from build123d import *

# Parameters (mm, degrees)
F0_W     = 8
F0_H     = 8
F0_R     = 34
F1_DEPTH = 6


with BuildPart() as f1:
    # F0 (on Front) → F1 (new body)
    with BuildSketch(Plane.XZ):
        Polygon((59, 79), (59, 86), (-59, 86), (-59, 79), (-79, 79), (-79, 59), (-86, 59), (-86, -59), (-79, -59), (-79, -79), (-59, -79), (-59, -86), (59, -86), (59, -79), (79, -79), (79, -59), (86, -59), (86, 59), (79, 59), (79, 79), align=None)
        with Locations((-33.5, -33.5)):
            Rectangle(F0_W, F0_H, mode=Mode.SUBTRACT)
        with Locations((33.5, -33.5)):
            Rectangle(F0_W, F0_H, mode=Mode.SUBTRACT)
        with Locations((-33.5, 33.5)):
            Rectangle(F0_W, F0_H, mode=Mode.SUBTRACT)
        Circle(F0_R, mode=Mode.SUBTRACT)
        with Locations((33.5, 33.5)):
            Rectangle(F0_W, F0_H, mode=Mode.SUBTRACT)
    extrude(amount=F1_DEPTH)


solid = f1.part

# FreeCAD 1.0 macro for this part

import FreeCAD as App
import Part
import Sketcher

V = App.Vector


def add_polygon(sketch, points):
    """Adds a closed chain of lines whose ends are joined by coincident constraints."""
    first, n = sketch.GeometryCount, len(points)
    for a, b in zip(points, points[1:] + points[:1]):
        sketch.addGeometry(Part.LineSegment(App.Vector(*a, 0), App.Vector(*b, 0)), False)
    for i in range(n):
        sketch.addConstraint(Sketcher.Constraint("Coincident", first + i, 2, first + (i + 1) % n, 1))

doc = App.newDocument("Part")
params = doc.addObject("Spreadsheet::Sheet", "Params")
for row, (alias, value) in enumerate([
    ("sketch1_diameter", "68 mm"),
    ("sketch1_width", "118 mm"),
    ("sketch1_width2", "20 mm"),
    ("sketch1_width3", "7 mm"),
    ("sketch1_width4", "8 mm"),
    ("pad1_length", "6 mm"),
], start=1):
    params.set(f"A{row}", alias)
    params.set(f"B{row}", "=" + value)
    params.setAlias(f"B{row}", alias)

body = doc.addObject("PartDesign::Body", "Body")

# Sketch on XZ plane
sketch1 = body.newObject("Sketcher::SketchObject", "Sketch")
sketch1.AttachmentSupport = (doc.getObject("XZ_Plane"), [""])
sketch1.MapMode = "FlatFace"
add_polygon(sketch1, [(59, 79), (59, 86), (-59, 86), (-59, 79), (-79, 79), (-79, 59), (-86, 59), (-86, -59), (-79, -59), (-79, -79), (-59, -79), (-59, -86), (59, -86), (59, -79), (79, -79), (79, -59), (86, -59), (86, 59), (79, 59), (79, 79)])  # lines 0-19
add_polygon(sketch1, [(-30, -38), (-38, -38), (-38, -30), (-30, -30)])  # lines 20-23
add_polygon(sketch1, [(38, -38), (30, -38), (30, -30), (38, -30)])  # lines 24-27
add_polygon(sketch1, [(-30, 30), (-38, 30), (-38, 38), (-30, 38)])  # lines 28-31
sketch1.addGeometry(Part.Circle(V(0, 0, 0), V(0, 0, 1), 34), False)  # 32
add_polygon(sketch1, [(38, 30), (30, 30), (30, 38), (38, 38)])  # lines 33-36
sketch1.addConstraint([
    Sketcher.Constraint("Vertical", 0),
    Sketcher.Constraint("Horizontal", 1),
    Sketcher.Constraint("Vertical", 2),
    Sketcher.Constraint("Horizontal", 3),
    Sketcher.Constraint("Vertical", 4),
    Sketcher.Constraint("Horizontal", 5),
    Sketcher.Constraint("Vertical", 6),
    Sketcher.Constraint("Horizontal", 7),
    Sketcher.Constraint("Vertical", 8),
    Sketcher.Constraint("Horizontal", 9),
    Sketcher.Constraint("Vertical", 10),
    Sketcher.Constraint("Horizontal", 11),
    Sketcher.Constraint("Vertical", 12),
    Sketcher.Constraint("Horizontal", 13),
    Sketcher.Constraint("Vertical", 14),
    Sketcher.Constraint("Horizontal", 15),
    Sketcher.Constraint("Vertical", 16),
    Sketcher.Constraint("Horizontal", 17),
    Sketcher.Constraint("Vertical", 18),
    Sketcher.Constraint("Horizontal", 19),
    Sketcher.Constraint("Horizontal", 20),
    Sketcher.Constraint("Vertical", 21),
    Sketcher.Constraint("Horizontal", 22),
    Sketcher.Constraint("Vertical", 23),
    Sketcher.Constraint("Horizontal", 24),
    Sketcher.Constraint("Vertical", 25),
    Sketcher.Constraint("Horizontal", 26),
    Sketcher.Constraint("Vertical", 27),
    Sketcher.Constraint("Horizontal", 28),
    Sketcher.Constraint("Vertical", 29),
    Sketcher.Constraint("Horizontal", 30),
    Sketcher.Constraint("Vertical", 31),
    Sketcher.Constraint("Horizontal", 33),
    Sketcher.Constraint("Vertical", 34),
    Sketcher.Constraint("Horizontal", 35),
    Sketcher.Constraint("Vertical", 36),
    Sketcher.Constraint("Coincident", 32, 3, -1, 1),
    Sketcher.Constraint("Symmetric", 0, 2, 10, 2, -1, 1),
    Sketcher.Constraint("Symmetric", 2, 2, 12, 2, -1, 1),
    Sketcher.Constraint("Symmetric", 4, 2, 14, 2, -1, 1),
    Sketcher.Constraint("Symmetric", 6, 2, 16, 2, -1, 1),
    Sketcher.Constraint("Symmetric", 8, 2, 18, 2, -1, 1),
    Sketcher.Constraint("Symmetric", 26, 2, 28, 2, -1, 1),
    Sketcher.Constraint("Symmetric", 24, 2, 30, 2, -1, 1),
    Sketcher.Constraint("Symmetric", 22, 2, 33, 2, -1, 1),
    Sketcher.Constraint("Symmetric", 20, 2, 35, 2, -1, 1),
    Sketcher.Constraint("Symmetric", 9, 2, 12, 2, -2),
    Sketcher.Constraint("Symmetric", 7, 2, 14, 2, -2),
    Sketcher.Constraint("Symmetric", 23, 2, 24, 2, -2),
    Sketcher.Constraint("Symmetric", 21, 2, 26, 2, -2),
    Sketcher.Constraint("Equal", 17, 0),
    Sketcher.Constraint("Equal", 19, 4),
    Sketcher.Constraint("Equal", 11, 6),
    Sketcher.Constraint("Equal", 35, 21),
    Sketcher.Constraint("Diameter", 32, 68.0),
    Sketcher.Constraint("DistanceX", 1, 2, 1, 1, 118.0),
    Sketcher.Constraint("DistanceX", 3, 2, 3, 1, 20.0),
    Sketcher.Constraint("DistanceX", 5, 2, 5, 1, 7.0),
    Sketcher.Constraint("DistanceX", 20, 2, 20, 1, 8.0),
    Sketcher.Constraint("DistanceX", 23, 2, 24, 2, 59.0),
    Sketcher.Constraint("DistanceY", 21, 2, 28, 2, 59.0),
])
sketch1.setExpression("Constraints[90]", "Params.sketch1_diameter")
sketch1.setExpression("Constraints[91]", "Params.sketch1_width")
sketch1.setExpression("Constraints[92]", "Params.sketch1_width2")
sketch1.setExpression("Constraints[93]", "Params.sketch1_width3")
sketch1.setExpression("Constraints[94]", "Params.sketch1_width4")
pad1 = body.newObject("PartDesign::Pad", "Pad")
pad1.Profile = sketch1
pad1.setExpression("Length", "Params.pad1_length")

doc.recompute()
